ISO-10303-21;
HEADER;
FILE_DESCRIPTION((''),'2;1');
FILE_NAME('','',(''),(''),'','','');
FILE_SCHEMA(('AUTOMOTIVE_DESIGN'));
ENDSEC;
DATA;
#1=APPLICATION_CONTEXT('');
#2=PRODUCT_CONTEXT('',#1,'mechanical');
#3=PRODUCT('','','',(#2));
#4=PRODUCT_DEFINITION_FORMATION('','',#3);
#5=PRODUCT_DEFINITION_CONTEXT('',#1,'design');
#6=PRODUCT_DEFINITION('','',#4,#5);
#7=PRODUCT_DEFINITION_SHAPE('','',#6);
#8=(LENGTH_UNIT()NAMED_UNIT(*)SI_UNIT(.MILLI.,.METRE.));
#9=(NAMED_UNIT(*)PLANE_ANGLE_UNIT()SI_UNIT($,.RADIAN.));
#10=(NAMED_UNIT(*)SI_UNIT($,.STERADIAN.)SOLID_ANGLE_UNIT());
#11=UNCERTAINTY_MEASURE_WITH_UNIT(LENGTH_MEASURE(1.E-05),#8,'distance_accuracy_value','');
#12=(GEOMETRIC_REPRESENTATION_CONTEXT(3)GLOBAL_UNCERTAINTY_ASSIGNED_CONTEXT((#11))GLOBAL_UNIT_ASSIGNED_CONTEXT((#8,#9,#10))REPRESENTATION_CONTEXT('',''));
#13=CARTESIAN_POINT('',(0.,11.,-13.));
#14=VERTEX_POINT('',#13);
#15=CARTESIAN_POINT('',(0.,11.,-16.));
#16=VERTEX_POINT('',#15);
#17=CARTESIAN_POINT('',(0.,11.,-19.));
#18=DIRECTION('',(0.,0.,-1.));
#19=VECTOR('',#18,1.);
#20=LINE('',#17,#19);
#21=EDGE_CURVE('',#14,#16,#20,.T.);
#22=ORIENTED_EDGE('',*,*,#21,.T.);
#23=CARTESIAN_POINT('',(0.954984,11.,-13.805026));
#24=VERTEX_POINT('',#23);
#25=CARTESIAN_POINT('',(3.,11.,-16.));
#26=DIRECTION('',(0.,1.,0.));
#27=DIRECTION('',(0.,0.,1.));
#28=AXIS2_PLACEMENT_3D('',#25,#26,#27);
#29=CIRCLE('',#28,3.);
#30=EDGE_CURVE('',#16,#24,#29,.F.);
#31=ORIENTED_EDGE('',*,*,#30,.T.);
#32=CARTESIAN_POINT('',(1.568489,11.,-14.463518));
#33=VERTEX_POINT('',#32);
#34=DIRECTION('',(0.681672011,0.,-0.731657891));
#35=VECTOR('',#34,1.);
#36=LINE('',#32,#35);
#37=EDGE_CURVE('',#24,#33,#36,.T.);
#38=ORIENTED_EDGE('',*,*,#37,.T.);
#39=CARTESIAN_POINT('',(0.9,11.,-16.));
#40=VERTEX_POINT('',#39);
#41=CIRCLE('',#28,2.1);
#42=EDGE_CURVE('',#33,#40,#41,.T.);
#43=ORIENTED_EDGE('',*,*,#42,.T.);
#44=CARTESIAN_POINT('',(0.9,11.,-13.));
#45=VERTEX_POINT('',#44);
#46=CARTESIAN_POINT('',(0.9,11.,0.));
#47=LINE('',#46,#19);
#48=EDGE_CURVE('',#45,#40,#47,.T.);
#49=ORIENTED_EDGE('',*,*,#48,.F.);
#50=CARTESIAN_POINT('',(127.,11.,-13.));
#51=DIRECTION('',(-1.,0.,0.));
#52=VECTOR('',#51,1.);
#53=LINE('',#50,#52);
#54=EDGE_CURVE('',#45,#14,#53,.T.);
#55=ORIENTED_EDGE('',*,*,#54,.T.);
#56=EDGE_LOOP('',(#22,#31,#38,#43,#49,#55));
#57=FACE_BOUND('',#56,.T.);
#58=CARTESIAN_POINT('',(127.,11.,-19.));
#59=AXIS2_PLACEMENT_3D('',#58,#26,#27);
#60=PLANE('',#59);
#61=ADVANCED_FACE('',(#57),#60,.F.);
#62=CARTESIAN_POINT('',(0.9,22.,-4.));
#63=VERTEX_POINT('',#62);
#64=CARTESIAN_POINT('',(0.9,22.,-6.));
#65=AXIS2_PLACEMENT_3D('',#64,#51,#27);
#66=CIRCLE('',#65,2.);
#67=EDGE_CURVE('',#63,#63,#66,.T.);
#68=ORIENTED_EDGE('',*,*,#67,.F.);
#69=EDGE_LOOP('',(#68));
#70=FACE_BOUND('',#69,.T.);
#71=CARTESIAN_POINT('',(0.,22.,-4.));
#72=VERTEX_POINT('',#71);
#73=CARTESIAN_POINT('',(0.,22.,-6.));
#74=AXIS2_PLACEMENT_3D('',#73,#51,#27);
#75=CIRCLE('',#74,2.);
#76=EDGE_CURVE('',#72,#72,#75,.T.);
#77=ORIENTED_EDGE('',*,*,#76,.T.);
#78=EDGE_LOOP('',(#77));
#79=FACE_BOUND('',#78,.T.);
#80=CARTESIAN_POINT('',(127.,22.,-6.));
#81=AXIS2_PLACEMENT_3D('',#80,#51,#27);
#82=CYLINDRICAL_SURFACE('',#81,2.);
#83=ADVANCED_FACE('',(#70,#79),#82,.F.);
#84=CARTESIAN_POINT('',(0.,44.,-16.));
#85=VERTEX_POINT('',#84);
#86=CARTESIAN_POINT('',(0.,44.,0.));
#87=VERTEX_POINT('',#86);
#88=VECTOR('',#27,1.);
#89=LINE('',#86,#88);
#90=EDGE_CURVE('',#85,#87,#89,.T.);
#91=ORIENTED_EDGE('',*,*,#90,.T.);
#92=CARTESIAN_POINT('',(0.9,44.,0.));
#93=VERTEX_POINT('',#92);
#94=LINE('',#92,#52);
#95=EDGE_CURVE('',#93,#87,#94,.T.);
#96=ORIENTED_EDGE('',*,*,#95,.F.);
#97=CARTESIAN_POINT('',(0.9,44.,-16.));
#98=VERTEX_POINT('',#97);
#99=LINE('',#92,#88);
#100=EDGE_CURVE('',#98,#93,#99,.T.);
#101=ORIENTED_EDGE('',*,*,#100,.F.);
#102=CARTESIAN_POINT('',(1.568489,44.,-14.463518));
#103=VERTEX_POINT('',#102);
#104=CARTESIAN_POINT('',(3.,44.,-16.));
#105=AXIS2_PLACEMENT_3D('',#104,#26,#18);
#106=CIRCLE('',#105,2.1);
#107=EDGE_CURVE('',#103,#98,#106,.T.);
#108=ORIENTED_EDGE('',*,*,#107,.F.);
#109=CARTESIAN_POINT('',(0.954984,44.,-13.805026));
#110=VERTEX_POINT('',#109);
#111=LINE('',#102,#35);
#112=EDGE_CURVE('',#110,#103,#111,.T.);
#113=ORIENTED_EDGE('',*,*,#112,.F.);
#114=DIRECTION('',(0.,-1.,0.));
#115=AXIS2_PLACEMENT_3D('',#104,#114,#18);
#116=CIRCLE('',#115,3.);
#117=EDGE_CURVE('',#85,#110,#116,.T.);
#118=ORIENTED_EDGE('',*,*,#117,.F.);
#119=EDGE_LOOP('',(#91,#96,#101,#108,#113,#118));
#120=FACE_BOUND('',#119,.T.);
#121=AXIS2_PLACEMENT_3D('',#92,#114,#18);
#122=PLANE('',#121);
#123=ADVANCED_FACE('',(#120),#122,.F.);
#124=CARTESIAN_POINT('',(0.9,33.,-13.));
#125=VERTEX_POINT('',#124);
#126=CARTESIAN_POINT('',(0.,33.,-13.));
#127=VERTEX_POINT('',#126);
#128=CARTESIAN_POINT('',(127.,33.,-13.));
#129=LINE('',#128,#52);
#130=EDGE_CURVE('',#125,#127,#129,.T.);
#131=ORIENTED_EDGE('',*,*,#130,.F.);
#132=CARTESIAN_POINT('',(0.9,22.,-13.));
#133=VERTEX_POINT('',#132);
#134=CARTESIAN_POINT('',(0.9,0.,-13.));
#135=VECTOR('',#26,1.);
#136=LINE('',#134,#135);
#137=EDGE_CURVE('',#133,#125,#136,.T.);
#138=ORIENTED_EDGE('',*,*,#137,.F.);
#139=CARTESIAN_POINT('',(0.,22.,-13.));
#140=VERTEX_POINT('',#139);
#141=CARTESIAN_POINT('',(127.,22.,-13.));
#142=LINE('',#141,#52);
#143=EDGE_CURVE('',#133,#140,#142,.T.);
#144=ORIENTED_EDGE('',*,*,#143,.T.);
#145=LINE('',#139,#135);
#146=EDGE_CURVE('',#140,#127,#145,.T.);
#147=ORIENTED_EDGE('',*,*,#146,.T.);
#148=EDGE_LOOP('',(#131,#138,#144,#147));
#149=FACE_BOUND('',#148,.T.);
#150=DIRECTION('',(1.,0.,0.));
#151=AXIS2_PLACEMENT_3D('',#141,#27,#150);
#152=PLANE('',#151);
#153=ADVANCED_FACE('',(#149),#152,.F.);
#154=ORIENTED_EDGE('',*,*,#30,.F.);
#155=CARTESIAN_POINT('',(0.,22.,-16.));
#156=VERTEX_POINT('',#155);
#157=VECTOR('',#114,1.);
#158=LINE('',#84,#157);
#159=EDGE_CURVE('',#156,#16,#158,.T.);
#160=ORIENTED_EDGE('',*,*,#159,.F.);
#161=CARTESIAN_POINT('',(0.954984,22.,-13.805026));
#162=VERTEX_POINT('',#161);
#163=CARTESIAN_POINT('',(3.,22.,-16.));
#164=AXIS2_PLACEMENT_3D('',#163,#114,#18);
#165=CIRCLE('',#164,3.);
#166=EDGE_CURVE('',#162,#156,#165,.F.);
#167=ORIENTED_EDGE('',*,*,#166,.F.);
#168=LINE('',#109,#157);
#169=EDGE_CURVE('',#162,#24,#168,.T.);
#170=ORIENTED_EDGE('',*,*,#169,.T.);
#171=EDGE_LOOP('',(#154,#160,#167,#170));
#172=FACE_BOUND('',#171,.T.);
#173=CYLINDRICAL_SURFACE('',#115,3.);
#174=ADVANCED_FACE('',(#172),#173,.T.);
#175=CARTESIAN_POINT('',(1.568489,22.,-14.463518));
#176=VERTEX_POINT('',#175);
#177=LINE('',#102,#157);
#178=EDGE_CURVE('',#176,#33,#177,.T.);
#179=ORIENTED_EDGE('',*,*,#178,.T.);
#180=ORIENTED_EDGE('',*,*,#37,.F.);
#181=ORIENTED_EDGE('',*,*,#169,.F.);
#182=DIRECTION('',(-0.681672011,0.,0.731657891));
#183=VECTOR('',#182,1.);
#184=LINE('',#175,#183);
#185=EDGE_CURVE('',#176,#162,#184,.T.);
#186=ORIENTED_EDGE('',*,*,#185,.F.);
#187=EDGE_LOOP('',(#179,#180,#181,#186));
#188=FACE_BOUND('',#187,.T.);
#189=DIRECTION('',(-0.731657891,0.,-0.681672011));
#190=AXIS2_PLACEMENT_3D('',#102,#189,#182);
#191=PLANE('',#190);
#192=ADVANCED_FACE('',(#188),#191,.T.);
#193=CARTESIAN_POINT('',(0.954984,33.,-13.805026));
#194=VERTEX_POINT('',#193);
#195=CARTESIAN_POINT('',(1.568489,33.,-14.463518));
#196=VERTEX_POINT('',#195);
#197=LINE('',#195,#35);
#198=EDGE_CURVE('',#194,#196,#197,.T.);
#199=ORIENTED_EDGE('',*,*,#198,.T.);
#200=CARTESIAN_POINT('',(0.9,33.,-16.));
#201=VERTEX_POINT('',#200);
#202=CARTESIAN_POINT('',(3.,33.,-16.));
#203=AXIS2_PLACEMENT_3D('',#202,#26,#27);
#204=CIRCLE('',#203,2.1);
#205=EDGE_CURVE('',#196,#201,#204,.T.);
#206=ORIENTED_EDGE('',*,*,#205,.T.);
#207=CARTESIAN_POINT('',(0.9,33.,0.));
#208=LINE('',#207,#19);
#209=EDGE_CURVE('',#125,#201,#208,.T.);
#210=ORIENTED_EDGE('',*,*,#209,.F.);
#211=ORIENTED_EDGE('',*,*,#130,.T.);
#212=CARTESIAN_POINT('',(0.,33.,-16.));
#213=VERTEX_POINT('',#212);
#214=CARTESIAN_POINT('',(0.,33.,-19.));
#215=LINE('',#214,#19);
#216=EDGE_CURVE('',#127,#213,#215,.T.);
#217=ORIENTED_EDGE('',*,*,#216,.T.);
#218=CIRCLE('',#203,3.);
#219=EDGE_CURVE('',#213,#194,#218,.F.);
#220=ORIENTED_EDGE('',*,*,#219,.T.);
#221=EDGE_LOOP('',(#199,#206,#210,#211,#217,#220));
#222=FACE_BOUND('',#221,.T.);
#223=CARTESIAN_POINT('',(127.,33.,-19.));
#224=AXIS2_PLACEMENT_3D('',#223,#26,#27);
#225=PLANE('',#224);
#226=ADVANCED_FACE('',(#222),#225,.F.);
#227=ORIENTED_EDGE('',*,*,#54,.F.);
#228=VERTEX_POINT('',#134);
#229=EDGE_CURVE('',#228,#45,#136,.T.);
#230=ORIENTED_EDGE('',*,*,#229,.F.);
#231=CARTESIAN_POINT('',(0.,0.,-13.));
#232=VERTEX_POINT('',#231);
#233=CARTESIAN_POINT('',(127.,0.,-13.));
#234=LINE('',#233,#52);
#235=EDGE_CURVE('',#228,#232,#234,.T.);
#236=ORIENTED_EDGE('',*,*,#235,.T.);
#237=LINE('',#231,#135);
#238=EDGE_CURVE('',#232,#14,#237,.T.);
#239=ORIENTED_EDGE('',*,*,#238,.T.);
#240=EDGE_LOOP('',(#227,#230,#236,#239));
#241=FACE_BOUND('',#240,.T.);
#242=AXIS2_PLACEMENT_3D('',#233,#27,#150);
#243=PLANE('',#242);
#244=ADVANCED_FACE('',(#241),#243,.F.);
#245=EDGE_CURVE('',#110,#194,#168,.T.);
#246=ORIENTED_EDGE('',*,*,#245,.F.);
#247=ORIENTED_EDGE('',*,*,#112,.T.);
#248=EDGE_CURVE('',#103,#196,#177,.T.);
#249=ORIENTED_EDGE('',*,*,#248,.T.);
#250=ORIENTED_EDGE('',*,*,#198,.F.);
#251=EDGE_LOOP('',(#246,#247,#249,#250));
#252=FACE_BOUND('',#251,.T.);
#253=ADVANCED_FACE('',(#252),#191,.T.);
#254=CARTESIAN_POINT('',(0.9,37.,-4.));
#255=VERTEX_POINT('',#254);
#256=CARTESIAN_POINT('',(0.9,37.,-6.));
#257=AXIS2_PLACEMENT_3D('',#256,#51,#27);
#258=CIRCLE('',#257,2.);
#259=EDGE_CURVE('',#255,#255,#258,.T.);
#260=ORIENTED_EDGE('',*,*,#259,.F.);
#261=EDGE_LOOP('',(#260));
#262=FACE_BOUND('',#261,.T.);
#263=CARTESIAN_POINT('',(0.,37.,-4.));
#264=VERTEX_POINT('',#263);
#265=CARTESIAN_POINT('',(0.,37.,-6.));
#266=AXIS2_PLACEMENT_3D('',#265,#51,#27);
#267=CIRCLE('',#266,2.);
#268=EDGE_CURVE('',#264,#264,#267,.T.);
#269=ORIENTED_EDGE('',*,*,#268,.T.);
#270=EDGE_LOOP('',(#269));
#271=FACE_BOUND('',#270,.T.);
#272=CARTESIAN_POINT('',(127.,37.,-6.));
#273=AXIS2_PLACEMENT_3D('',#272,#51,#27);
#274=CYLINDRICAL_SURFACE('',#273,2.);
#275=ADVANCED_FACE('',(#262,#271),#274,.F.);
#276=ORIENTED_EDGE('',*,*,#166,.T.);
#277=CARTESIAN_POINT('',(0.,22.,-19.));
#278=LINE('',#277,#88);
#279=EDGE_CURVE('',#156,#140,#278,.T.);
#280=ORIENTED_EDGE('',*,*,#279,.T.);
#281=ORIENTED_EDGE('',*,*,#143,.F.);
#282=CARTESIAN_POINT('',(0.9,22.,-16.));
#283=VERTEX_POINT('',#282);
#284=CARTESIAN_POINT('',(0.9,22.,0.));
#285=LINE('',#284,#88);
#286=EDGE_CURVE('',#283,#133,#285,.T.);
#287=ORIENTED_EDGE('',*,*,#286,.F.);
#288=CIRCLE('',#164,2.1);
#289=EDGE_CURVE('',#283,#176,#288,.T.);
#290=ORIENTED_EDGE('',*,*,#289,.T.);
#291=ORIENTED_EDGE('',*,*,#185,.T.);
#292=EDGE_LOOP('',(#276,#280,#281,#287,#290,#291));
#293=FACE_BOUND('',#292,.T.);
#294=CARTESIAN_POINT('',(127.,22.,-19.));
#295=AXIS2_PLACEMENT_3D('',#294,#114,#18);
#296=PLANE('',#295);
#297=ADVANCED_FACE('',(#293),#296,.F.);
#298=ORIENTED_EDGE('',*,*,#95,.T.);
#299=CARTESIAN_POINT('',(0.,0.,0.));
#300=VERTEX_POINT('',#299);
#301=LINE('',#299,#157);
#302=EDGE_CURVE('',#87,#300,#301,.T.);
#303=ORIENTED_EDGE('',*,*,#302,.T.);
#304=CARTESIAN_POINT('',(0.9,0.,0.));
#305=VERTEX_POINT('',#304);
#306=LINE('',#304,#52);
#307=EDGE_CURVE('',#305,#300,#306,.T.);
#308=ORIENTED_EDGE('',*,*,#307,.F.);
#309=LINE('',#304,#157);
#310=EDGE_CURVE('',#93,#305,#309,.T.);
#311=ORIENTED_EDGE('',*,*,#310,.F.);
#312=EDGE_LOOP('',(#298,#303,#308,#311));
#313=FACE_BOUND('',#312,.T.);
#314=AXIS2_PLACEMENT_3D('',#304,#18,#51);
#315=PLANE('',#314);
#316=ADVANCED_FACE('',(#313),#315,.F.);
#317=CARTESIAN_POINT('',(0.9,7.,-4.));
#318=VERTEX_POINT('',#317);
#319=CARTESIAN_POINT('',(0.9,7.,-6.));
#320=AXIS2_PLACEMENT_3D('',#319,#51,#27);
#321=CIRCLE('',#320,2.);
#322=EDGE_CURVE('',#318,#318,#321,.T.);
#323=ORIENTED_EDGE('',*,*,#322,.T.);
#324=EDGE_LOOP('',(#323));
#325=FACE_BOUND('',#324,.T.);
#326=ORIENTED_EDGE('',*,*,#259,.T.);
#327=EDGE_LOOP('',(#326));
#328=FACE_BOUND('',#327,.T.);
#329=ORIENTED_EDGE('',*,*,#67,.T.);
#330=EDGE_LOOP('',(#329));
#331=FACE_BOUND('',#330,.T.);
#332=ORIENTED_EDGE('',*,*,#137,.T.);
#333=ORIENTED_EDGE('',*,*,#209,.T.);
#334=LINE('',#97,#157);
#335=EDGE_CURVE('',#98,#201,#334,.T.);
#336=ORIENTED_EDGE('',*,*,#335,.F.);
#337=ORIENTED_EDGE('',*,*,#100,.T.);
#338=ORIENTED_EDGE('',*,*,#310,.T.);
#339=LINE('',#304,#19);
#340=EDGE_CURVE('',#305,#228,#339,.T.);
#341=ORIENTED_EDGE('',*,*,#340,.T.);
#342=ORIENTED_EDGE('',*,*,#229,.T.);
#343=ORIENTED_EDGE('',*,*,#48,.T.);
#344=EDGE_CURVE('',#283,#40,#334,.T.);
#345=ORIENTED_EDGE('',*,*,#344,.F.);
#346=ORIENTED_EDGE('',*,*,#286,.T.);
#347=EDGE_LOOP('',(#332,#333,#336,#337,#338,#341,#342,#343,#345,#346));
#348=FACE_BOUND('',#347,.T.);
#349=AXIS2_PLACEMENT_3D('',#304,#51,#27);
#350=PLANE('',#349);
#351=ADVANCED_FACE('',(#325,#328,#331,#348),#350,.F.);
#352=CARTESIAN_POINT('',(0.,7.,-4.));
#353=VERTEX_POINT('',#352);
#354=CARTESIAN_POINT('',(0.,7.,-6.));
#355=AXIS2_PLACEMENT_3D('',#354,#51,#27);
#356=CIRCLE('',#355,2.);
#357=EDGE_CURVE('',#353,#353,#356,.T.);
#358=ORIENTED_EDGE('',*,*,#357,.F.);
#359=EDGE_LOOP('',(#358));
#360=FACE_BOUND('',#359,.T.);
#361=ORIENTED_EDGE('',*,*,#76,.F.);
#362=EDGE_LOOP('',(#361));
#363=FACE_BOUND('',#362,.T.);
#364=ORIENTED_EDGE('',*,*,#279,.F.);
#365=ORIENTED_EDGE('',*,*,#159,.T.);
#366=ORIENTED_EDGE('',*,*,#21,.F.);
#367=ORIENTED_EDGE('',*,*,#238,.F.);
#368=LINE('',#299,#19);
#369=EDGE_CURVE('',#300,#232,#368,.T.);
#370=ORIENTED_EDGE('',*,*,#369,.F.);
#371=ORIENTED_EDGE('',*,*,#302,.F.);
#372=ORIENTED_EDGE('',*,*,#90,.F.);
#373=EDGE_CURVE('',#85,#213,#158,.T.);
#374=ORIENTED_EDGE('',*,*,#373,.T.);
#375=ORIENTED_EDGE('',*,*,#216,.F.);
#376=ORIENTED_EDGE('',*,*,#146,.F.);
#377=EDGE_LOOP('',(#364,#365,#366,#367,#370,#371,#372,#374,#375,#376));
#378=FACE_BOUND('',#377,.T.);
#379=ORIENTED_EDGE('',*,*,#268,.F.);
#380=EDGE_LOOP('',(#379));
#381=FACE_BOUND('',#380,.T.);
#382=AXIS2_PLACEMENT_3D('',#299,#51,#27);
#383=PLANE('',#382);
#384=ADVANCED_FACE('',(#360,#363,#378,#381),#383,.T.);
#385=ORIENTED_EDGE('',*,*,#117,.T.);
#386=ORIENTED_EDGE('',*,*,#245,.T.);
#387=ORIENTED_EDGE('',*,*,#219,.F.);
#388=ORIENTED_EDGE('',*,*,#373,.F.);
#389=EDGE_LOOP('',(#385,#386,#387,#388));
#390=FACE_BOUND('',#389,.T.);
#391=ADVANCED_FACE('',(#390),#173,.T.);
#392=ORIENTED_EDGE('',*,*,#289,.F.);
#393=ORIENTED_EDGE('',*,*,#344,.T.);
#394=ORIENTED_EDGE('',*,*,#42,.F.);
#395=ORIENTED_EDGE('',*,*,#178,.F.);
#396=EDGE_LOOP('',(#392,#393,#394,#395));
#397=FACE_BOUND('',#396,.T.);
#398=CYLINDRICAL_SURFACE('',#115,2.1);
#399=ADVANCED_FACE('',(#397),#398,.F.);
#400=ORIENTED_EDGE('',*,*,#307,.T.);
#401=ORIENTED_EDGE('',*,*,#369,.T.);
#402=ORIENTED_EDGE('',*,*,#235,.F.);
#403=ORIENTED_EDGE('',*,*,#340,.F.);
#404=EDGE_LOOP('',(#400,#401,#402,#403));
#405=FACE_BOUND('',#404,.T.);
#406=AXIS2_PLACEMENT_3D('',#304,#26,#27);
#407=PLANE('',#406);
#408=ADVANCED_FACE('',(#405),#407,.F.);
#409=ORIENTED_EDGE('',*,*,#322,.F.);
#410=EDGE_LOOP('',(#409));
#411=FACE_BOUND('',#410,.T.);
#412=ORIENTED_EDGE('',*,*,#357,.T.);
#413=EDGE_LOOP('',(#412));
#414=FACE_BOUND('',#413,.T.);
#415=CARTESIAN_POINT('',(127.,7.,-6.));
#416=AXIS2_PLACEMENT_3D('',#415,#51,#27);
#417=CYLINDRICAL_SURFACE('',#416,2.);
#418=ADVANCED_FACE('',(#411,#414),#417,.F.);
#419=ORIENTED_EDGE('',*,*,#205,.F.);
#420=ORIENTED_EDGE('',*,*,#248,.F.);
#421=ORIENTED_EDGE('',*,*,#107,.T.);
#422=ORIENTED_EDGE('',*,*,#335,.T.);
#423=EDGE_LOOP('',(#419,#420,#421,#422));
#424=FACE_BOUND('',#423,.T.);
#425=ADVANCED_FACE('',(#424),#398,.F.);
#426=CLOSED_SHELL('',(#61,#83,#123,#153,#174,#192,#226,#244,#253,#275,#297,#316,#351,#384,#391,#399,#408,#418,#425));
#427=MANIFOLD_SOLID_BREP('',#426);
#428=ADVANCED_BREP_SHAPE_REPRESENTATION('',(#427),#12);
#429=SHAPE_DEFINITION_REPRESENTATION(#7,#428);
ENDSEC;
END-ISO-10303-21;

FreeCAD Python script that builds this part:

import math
import FreeCAD as App
import Part
import Sketcher
Q = App.Units.Quantity


def add_polygon(sketch, points):
    """Adds a closed chain of lines whose ends are joined by coincident constraints."""
    first, n = sketch.GeometryCount, len(points)
    for a, b in zip(points, points[1:] + points[:1]):
        sketch.addGeometry(Part.LineSegment(App.Vector(*a, 0), App.Vector(*b, 0)), False)
    for i in range(n):
        sketch.addConstraint(Sketcher.Constraint("Coincident", first + i, 2, first + (i + 1) % n, 1))

doc = App.newDocument("Part")
body = doc.addObject("PartDesign::Body", "Body")

# Sketch on YZ plane
sketch1 = body.newObject("Sketcher::SketchObject", "Sketch")
sketch1.AttachmentSupport = (doc.getObject("YZ_Plane"), [""])
sketch1.MapMode = "FlatFace"
add_polygon(sketch1, [(44, 0), (0, 0), (0, -13), (44, -13)])  # lines 0-3
sketch1.addConstraint([
    Sketcher.Constraint("Horizontal", 0),
    Sketcher.Constraint("Vertical", 1),
    Sketcher.Constraint("Horizontal", 2),
    Sketcher.Constraint("Vertical", 3),
    Sketcher.Constraint("Coincident", 0, 2, -1, 1),
    Sketcher.Constraint("DistanceX", 0, 2, 0, 1, Q("44 mm")),
    Sketcher.Constraint("DistanceY", 1, 2, 1, 1, Q("13 mm")),
])
pad1 = body.newObject("PartDesign::Pad", "Pad")
pad1.Profile = sketch1
pad1.Length = 0.9

# Sketch on XZ plane
sketch2 = body.newObject("Sketcher::SketchObject", "Sketch001")
sketch2.AttachmentSupport = (doc.getObject("XZ_Plane"), [""])
sketch2.MapMode = "FlatFace"
sketch2.addGeometry([
    Part.LineSegment(App.Vector(0, -13, 0), App.Vector(0, -16, 0)),  # 0
    Part.ArcOfCircle(Part.Circle(App.Vector(3, -16, 0), App.Vector(0, 0, 1), 3), math.radians(180), math.radians(493)),  # 1
    Part.LineSegment(App.Vector(1, -13.8, 0), App.Vector(1.6, -14.5, 0)),  # 2
    Part.ArcOfCircle(Part.Circle(App.Vector(3, -16, 0), App.Vector(0, 0, 1), 2.1), math.radians(180), math.radians(493)),  # 3
    Part.LineSegment(App.Vector(0.9, -16, 0), App.Vector(0.9, -13, 0)),  # 4
    Part.LineSegment(App.Vector(0.9, -13, 0), App.Vector(0, -13, 0)),  # 5
], False)
sketch2.addConstraint([
    Sketcher.Constraint("Tangent", 0, 2, 1, 1),
    Sketcher.Constraint("Coincident", 1, 2, 2, 1),
    Sketcher.Constraint("Coincident", 2, 2, 3, 2),
    Sketcher.Constraint("Tangent", 3, 1, 4, 1),
    Sketcher.Constraint("Coincident", 4, 2, 5, 1),
    Sketcher.Constraint("Coincident", 5, 2, 0, 1),
    Sketcher.Constraint("Vertical", 0),
    Sketcher.Constraint("Vertical", 4),
    Sketcher.Constraint("Horizontal", 5),
    Sketcher.Constraint("Coincident", 3, 3, 1, 3),
    Sketcher.Constraint("PointOnObject", 0, 2, -2),
    Sketcher.Constraint("Radius", 1, Q("3 mm")),
    Sketcher.Constraint("Radius", 3, Q("2.1 mm")),
    Sketcher.Constraint("DistanceY", 0, 2, 0, 1, Q("3 mm")),
    Sketcher.Constraint("DistanceY", 1, 3, -1, 1, Q("16 mm")),
    Sketcher.Constraint("DistanceX", -1, 1, 2, 2, Q("1.568489 mm")),
    Sketcher.Constraint("DistanceX", -1, 1, 1, 2, Q("0.954984 mm")),
])
pad2 = body.newObject("PartDesign::Pad", "Pad001")
pad2.Profile = sketch2
pad2.Length = 44
pad2.Reversed = True

# Sketch on YZ plane
sketch3 = body.newObject("Sketcher::SketchObject", "Sketch002")
sketch3.AttachmentSupport = (doc.getObject("YZ_Plane"), [""])
sketch3.MapMode = "FlatFace"
sketch3.addGeometry(Part.Circle(App.Vector(7, -6, 0), App.Vector(0, 0, 1), 2), False)  # 0
sketch3.addGeometry(Part.Circle(App.Vector(22, -6, 0), App.Vector(0, 0, 1), 2), False)  # 1
sketch3.addGeometry(Part.Circle(App.Vector(37, -6, 0), App.Vector(0, 0, 1), 2), False)  # 2
add_polygon(sketch3, [(11, -19), (0, -19), (0, -13), (11, -13)])  # lines 3-6
add_polygon(sketch3, [(33, -19), (22, -19), (22, -13), (33, -13)])  # lines 7-10
sketch3.addConstraint([
    Sketcher.Constraint("Horizontal", 3),
    Sketcher.Constraint("Vertical", 4),
    Sketcher.Constraint("Horizontal", 5),
    Sketcher.Constraint("Vertical", 6),
    Sketcher.Constraint("Horizontal", 7),
    Sketcher.Constraint("Vertical", 8),
    Sketcher.Constraint("Horizontal", 9),
    Sketcher.Constraint("Vertical", 10),
    Sketcher.Constraint("Equal", 0, 1),
    Sketcher.Constraint("Equal", 1, 2),
    Sketcher.Constraint("PointOnObject", 3, 2, -2),
    Sketcher.Constraint("Horizontal", 0, 3, 1, 3),
    Sketcher.Constraint("Horizontal", 1, 3, 2, 3),
    Sketcher.Constraint("Horizontal", 6, 2, 7, 2),
    Sketcher.Constraint("Horizontal", 5, 2, 8, 2),
    Sketcher.Constraint("Vertical", 1, 3, 7, 2),
    Sketcher.Constraint("Equal", 5, 7),
    Sketcher.Constraint("Diameter", 0, Q("4 mm")),
    Sketcher.Constraint("DistanceX", 3, 2, 3, 1, Q("11 mm")),
    Sketcher.Constraint("DistanceY", 4, 1, 4, 2, Q("6 mm")),
    Sketcher.Constraint("DistanceX", -1, 1, 0, 3, Q("7 mm")),
    Sketcher.Constraint("DistanceY", 0, 3, -1, 1, Q("6 mm")),
    Sketcher.Constraint("DistanceX", -1, 1, 1, 3, Q("22 mm")),
    Sketcher.Constraint("DistanceX", -1, 1, 2, 3, Q("37 mm")),
    Sketcher.Constraint("DistanceY", 3, 2, -1, 1, Q("19 mm")),
])
pocket1 = body.newObject("PartDesign::Pocket", "Pocket")
pocket1.Profile = sketch3
pocket1.Length = 127
pocket1.Reversed = True

doc.recompute()
